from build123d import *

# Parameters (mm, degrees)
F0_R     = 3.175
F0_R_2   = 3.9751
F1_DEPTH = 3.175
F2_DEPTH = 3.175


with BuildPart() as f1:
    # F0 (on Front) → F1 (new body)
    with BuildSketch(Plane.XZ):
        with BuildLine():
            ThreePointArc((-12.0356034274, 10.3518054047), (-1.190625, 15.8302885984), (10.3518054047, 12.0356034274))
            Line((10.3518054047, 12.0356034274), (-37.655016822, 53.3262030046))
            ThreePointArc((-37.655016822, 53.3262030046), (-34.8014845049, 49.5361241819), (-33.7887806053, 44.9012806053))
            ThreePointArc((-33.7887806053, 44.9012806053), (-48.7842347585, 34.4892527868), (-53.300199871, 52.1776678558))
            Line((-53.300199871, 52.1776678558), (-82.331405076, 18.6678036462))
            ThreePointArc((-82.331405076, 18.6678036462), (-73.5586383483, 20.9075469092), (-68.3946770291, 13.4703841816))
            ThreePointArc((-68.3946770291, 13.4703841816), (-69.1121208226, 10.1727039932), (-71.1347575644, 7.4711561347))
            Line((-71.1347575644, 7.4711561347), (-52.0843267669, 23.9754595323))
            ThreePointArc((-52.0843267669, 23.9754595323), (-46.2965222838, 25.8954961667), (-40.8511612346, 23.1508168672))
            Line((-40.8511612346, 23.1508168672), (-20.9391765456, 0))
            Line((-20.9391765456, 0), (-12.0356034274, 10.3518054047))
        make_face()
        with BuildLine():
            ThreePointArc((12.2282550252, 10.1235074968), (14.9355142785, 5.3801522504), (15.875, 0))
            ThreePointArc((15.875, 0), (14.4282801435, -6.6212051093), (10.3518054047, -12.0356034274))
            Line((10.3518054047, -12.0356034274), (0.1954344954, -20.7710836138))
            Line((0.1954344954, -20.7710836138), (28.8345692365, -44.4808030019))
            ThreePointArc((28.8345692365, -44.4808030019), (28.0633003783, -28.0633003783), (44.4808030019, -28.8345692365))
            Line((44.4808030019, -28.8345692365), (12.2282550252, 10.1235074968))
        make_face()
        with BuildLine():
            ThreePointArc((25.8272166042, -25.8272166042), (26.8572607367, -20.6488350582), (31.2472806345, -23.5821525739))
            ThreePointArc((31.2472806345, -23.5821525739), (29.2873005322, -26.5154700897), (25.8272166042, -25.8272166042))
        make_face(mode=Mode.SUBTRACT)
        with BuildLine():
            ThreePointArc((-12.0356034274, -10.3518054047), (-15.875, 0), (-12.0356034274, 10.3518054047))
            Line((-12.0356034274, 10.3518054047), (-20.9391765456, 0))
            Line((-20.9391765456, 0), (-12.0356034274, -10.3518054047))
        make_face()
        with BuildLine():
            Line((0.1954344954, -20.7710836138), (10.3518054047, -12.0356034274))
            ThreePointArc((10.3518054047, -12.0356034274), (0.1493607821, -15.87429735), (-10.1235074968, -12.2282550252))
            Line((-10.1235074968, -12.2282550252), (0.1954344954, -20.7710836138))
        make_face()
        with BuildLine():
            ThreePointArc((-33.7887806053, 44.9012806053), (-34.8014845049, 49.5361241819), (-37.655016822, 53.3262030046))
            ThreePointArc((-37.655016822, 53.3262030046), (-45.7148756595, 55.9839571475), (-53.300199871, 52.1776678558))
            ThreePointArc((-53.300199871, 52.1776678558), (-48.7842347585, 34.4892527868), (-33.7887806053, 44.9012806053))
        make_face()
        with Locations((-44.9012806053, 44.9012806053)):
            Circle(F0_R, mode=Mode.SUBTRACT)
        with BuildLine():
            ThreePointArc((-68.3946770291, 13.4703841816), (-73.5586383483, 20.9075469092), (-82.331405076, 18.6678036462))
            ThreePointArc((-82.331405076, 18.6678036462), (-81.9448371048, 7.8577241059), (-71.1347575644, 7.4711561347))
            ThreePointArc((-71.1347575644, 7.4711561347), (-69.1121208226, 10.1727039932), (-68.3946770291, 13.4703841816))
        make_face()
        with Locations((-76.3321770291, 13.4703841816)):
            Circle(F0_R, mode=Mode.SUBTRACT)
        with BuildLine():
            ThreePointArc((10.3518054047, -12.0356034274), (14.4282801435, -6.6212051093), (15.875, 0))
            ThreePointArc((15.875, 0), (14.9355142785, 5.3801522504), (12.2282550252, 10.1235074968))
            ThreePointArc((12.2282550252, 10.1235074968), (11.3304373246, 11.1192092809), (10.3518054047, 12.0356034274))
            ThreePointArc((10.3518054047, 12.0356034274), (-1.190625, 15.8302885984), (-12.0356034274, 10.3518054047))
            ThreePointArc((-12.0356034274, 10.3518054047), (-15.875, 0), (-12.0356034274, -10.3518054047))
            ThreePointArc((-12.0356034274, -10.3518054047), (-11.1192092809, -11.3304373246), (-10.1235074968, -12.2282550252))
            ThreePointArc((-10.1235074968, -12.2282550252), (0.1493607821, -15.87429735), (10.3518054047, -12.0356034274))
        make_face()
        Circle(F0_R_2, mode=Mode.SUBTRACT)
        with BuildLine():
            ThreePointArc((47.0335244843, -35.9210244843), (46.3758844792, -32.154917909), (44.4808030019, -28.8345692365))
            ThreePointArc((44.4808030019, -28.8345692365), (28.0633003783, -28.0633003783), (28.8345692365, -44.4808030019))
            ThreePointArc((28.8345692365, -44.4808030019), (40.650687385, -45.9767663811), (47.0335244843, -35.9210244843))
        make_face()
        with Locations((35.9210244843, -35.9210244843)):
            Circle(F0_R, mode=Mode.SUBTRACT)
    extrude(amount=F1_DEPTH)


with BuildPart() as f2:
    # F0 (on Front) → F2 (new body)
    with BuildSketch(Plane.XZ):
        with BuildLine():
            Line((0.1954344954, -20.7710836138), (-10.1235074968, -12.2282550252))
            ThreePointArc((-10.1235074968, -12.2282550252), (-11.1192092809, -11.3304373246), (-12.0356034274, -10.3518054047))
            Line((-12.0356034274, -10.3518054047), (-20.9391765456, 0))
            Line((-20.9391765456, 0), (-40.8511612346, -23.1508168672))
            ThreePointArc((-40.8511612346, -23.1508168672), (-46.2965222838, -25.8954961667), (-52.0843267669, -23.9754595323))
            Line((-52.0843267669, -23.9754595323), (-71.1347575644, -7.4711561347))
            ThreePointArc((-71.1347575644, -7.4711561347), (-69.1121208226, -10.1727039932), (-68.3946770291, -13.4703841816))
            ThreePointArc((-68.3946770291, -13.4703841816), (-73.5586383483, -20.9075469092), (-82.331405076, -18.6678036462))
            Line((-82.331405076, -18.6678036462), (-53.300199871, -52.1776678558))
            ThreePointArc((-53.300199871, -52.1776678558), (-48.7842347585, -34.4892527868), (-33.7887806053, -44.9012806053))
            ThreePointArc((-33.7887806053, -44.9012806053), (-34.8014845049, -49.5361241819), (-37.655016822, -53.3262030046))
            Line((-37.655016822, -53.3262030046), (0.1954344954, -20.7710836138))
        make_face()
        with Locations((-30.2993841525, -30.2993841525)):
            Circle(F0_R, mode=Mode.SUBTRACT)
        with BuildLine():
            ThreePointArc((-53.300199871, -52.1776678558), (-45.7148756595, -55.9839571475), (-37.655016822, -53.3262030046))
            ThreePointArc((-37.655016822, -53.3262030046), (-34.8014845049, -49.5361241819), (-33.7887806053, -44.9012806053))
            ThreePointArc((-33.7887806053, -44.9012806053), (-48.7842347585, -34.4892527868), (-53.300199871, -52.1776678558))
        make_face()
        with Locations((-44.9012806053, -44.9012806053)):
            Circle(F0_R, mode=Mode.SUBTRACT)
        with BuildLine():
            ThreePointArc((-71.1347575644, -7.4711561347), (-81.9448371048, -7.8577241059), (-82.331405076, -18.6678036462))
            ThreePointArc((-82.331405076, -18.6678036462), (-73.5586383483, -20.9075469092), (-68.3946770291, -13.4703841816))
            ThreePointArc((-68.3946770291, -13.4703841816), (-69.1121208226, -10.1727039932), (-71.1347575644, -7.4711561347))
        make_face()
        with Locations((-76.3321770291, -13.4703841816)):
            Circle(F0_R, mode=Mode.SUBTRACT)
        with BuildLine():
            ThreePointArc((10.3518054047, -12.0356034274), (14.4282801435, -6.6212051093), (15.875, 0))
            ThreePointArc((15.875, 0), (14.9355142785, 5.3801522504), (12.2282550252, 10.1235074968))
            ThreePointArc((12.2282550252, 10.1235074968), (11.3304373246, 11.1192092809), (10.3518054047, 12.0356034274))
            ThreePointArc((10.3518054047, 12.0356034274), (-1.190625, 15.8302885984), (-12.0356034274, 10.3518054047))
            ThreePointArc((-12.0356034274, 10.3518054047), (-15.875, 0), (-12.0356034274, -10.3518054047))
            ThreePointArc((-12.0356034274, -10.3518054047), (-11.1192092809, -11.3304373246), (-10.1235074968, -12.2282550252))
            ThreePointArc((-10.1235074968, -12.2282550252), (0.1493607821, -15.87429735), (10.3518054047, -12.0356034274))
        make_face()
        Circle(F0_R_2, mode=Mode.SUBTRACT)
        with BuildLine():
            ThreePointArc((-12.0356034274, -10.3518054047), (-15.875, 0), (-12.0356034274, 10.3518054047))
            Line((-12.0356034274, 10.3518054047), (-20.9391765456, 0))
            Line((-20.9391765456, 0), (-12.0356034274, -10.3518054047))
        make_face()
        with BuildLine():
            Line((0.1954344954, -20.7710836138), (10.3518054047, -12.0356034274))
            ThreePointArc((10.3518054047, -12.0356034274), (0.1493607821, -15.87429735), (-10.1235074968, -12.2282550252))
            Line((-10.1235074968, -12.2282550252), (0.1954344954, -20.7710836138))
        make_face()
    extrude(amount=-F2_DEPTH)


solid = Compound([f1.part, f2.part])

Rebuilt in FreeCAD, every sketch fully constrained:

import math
import FreeCAD as App
import Part
import Sketcher

V = App.Vector
Q = App.Units.Quantity

doc = App.newDocument("Part")
body = doc.addObject("PartDesign::Body", "Body")

# Sketch on XZ plane
sketch1 = body.newObject("Sketcher::SketchObject", "Sketch")
sketch1.AttachmentSupport = (doc.getObject("XZ_Plane"), [""])
sketch1.MapMode = "FlatFace"
sketch1.addGeometry(Part.LineSegment(V(10.4, 12, 0), V(-37.7, 53.3, 0)), False)
sketch1.addGeometry(Part.ArcOfCircle(Part.Circle(V(-44.9, 44.9, 0), V(0, 0, 1), 11.1), math.radians(49), math.radians(139)), False)
sketch1.addGeometry(Part.LineSegment(V(-53.3, 52.2, 0), V(-82.3, 18.7, 0)), False)
sketch1.addGeometry(Part.ArcOfCircle(Part.Circle(V(-76.3, 13.5, 0), V(0, 0, 1), 7.9), math.radians(139), math.radians(311)), False)
sketch1.addGeometry(Part.LineSegment(V(-71.1, 7.5, 0), V(-52.1, 24, 0)), False)
sketch1.addGeometry(Part.ArcOfCircle(Part.Circle(V(-46.9, 18, 0), V(0, 0, 1), 8), math.radians(41), math.radians(131)), False)
sketch1.addGeometry(Part.LineSegment(V(-40.9, 23.2, 0), V(-20.9, 0, 0)), False)
sketch1.addGeometry(Part.LineSegment(V(-20.9, 0, 0), V(-12, -10.4, 0)), False)
sketch1.addGeometry(Part.ArcOfCircle(Part.Circle(V(0, 0, 0), V(0, 0, 1), 15.9), math.radians(-139.3), math.radians(-129.62)), False)
sketch1.addGeometry(Part.LineSegment(V(-10.1, -12.2, 0), V(0.2, -20.8, 0)), False)
sketch1.addGeometry(Part.LineSegment(V(0.2, -20.8, 0), V(28.8, -44.5, 0)), False)
sketch1.addGeometry(Part.ArcOfCircle(Part.Circle(V(35.9, -35.9, 0), V(0, 0, 1), 11.1), math.radians(-130), math.radians(0)), False)
sketch1.addGeometry(Part.ArcOfCircle(Part.Circle(V(35.9, -35.9, 0), V(0, 0, 1), 11.1), math.radians(0), math.radians(40)), False)
sketch1.addGeometry(Part.LineSegment(V(44.5, -28.8, 0), V(12.2, 10.1, 0)), False)
sketch1.addGeometry(Part.ArcOfCircle(Part.Circle(V(0, 0, 0), V(0, 0, 1), 15.9), math.radians(39.62), math.radians(49.3)), False)
sketch1.addGeometry(Part.Circle(V(35.9, -35.9, 0), V(0, 0, 1), 3.2), False)
sketch1.addGeometry(Part.ArcOfCircle(Part.Circle(V(28.1, -23.6, 0), V(0, 0, 1), 3.2), math.radians(-135), math.radians(0)), False)
sketch1.addGeometry(Part.ArcOfCircle(Part.Circle(V(28.1, -23.6, 0), V(0, 0, 1), 3.2), math.radians(0), math.radians(225)), False)
sketch1.addGeometry(Part.Circle(V(0, 0, 0), V(0, 0, 1), 4), False)
sketch1.addGeometry(Part.Circle(V(-76.3, 13.5, 0), V(0, 0, 1), 3.2), False)
sketch1.addGeometry(Part.Circle(V(-44.9, 44.9, 0), V(0, 0, 1), 3.2), False)
sketch1.addConstraint(Sketcher.Constraint("Tangent", 0, 2, 1, 1))
sketch1.addConstraint(Sketcher.Constraint("Tangent", 1, 2, 2, 1))
sketch1.addConstraint(Sketcher.Constraint("Tangent", 2, 2, 3, 1))
sketch1.addConstraint(Sketcher.Constraint("Tangent", 3, 2, 4, 1))
sketch1.addConstraint(Sketcher.Constraint("Tangent", 4, 2, 5, 2))
sketch1.addConstraint(Sketcher.Constraint("Tangent", 5, 1, 6, 1))
sketch1.addConstraint(Sketcher.Constraint("Coincident", 6, 2, 7, 1))
sketch1.addConstraint(Sketcher.Constraint("Tangent", 7, 2, 8, 1))
sketch1.addConstraint(Sketcher.Constraint("Tangent", 8, 2, 9, 1))
sketch1.addConstraint(Sketcher.Constraint("Coincident", 9, 2, 10, 1))
sketch1.addConstraint(Sketcher.Constraint("Tangent", 10, 2, 11, 1))
sketch1.addConstraint(Sketcher.Constraint("Tangent", 11, 2, 12, 1))
sketch1.addConstraint(Sketcher.Constraint("Tangent", 12, 2, 13, 1))
sketch1.addConstraint(Sketcher.Constraint("Tangent", 13, 2, 14, 1))
sketch1.addConstraint(Sketcher.Constraint("Tangent", 14, 2, 0, 1))
sketch1.addConstraint(Sketcher.Constraint("Tangent", 16, 1, 17, 2))
sketch1.addConstraint(Sketcher.Constraint("Coincident", 17, 1, 16, 2))
sketch1.addConstraint(Sketcher.Constraint("Coincident", 8, 3, -1, 1))
sketch1.addConstraint(Sketcher.Constraint("Coincident", 14, 3, -1, 1))
sketch1.addConstraint(Sketcher.Constraint("Coincident", 18, 3, -1, 1))
sketch1.addConstraint(Sketcher.Constraint("Coincident", 15, 3, 11, 3))
sketch1.addConstraint(Sketcher.Constraint("Coincident", 19, 3, 3, 3))
sketch1.addConstraint(Sketcher.Constraint("Coincident", 20, 3, 1, 3))
sketch1.addConstraint(Sketcher.Constraint("Equal", 1, 11))
sketch1.addConstraint(Sketcher.Constraint("Equal", 11, 12))
sketch1.addConstraint(Sketcher.Constraint("Equal", 8, 14))
sketch1.addConstraint(Sketcher.Constraint("Equal", 15, 16))
sketch1.addConstraint(Sketcher.Constraint("Equal", 17, 19))
sketch1.addConstraint(Sketcher.Constraint("Equal", 19, 20))
sketch1.addConstraint(Sketcher.Constraint("PointOnObject", 6, 2, -1))
sketch1.addConstraint(Sketcher.Constraint("Parallel", 6, 7))
sketch1.addConstraint(Sketcher.Constraint("Parallel", 9, 10))
sketch1.addConstraint(Sketcher.Constraint("Horizontal", 15, 3, 11, 2))
sketch1.addConstraint(Sketcher.Constraint("Horizontal", 16, 3, 17, 1))
sketch1.addConstraint(Sketcher.Constraint("Diameter", 15, Q("0.25 in")))
sketch1.addConstraint(Sketcher.Constraint("Diameter", 18, Q("0.313 in")))
sketch1.addConstraint(Sketcher.Constraint("Radius", 1, Q("0.4375 in")))
sketch1.addConstraint(Sketcher.Constraint("Radius", 3, Q("0.3125 in")))
sketch1.addConstraint(Sketcher.Constraint("Radius", 5, Q("0.313 in")))
sketch1.addConstraint(Sketcher.Constraint("Radius", 8, Q("0.625 in")))
sketch1.addConstraint(Sketcher.Constraint("DistanceX", 1, 2, -1, 1, Q("53.3002 mm")))
sketch1.addConstraint(Sketcher.Constraint("DistanceX", 3, 3, 11, 3, Q("112.253202 mm")))
sketch1.addConstraint(Sketcher.Constraint("Distance", 10, Q("37.179979 mm")))
sketch1.addConstraint(Sketcher.Constraint("DistanceX", 1, 3, -1, 1, Q("44.901281 mm")))
sketch1.addConstraint(Sketcher.Constraint("DistanceY", -1, 1, 1, 3, Q("44.901281 mm")))
sketch1.addConstraint(Sketcher.Constraint("DistanceX", 5, 3, -1, 1, Q("46.878591 mm")))
sketch1.addConstraint(Sketcher.Constraint("DistanceX", -1, 1, 16, 3, Q("28.072281 mm")))
sketch1.addConstraint(Sketcher.Constraint("DistanceY", -1, 1, 4, 2, Q("23.97546 mm")))
sketch1.addConstraint(Sketcher.Constraint("DistanceX", -1, 1, 10, 2, Q("28.834569 mm")))
sketch1.addConstraint(Sketcher.Constraint("DistanceY", 12, 2, -1, 1, Q("28.834569 mm")))
sketch1.addConstraint(Sketcher.Constraint("DistanceY", 11, 3, 16, 3, Q("12.338872 mm")))
sketch1.addConstraint(Sketcher.Constraint("DistanceX", -1, 1, 16, 1, Q("25.827217 mm")))
pad1 = body.newObject("PartDesign::Pad", "Pad")
pad1.Profile = sketch1
pad1.Length = Q("0.125 in")
body2 = doc.addObject("PartDesign::Body", "Body001")

# Sketch on XZ plane
sketch2 = body2.newObject("Sketcher::SketchObject", "Sketch001")
sketch2.AttachmentSupport = (doc.getObject("XZ_Plane001"), [""])
sketch2.MapMode = "FlatFace"
sketch2.addGeometry(Part.ArcOfCircle(Part.Circle(V(0, 0, 0), V(0, 0, 1), 15.875), math.radians(-49.301222), math.radians(0)), False)
sketch2.addGeometry(Part.ArcOfCircle(Part.Circle(V(0, 0, 0), V(0, 0, 1), 15.875), math.radians(0), math.radians(39.620621)), False)
sketch2.addGeometry(Part.ArcOfCircle(Part.Circle(V(0, 0, 0), V(0, 0, 1), 15.875), math.radians(39.620621), math.radians(49.301222)), False)
sketch2.addGeometry(Part.ArcOfCircle(Part.Circle(V(0, 0, 0), V(0, 0, 1), 15.875), math.radians(49.301222), math.radians(139.301222)), False)
sketch2.addGeometry(Part.LineSegment(V(-12.035603, 10.351805, 0), V(-20.939177, 0, 0)), False)
sketch2.addGeometry(Part.LineSegment(V(-20.939177, 0, 0), V(-40.851161, -23.150817, 0)), False)
sketch2.addGeometry(Part.ArcOfCircle(Part.Circle(V(-46.878591, -17.966633, 0), V(0, 0, 1), 7.9502), math.radians(-130.903956), math.radians(-40.698778)), False)
sketch2.addGeometry(Part.LineSegment(V(-52.084327, -23.97546, 0), V(-71.134758, -7.471156, 0)), False)
sketch2.addGeometry(Part.ArcOfCircle(Part.Circle(V(-76.332177, -13.470384, 0), V(0, 0, 1), 7.9375), math.radians(49.096044), math.radians(220.903956)), False)
sketch2.addGeometry(Part.LineSegment(V(-82.331405, -18.667804, 0), V(-53.3002, -52.177668, 0)), False)
sketch2.addGeometry(Part.ArcOfCircle(Part.Circle(V(-44.901281, -44.901281, 0), V(0, 0, 1), 11.1125), math.radians(-139.096044), math.radians(-49.301222)), False)
sketch2.addGeometry(Part.LineSegment(V(-37.655017, -53.326203, 0), V(10.351805, -12.035603, 0)), False)
sketch2.addGeometry(Part.Circle(V(-44.901281, -44.901281, 0), V(0, 0, 1), 3.175), False)
sketch2.addGeometry(Part.Circle(V(-30.299384, -30.299384, 0), V(0, 0, 1), 3.175), False)
sketch2.addGeometry(Part.Circle(V(-76.332177, -13.470384, 0), V(0, 0, 1), 3.175), False)
sketch2.addGeometry(Part.Circle(V(0, 0, 0), V(0, 0, 1), 3.9751), False)
sketch2.addConstraint(Sketcher.Constraint("Coincident", 0, 2, 1, 1))
sketch2.addConstraint(Sketcher.Constraint("Coincident", 1, 2, 2, 1))
sketch2.addConstraint(Sketcher.Constraint("Coincident", 2, 2, 3, 1))
sketch2.addConstraint(Sketcher.Constraint("Coincident", 3, 2, 4, 1))
sketch2.addConstraint(Sketcher.Constraint("Coincident", 4, 2, 5, 1))
sketch2.addConstraint(Sketcher.Constraint("Coincident", 5, 2, 6, 2))
sketch2.addConstraint(Sketcher.Constraint("Coincident", 6, 1, 7, 1))
sketch2.addConstraint(Sketcher.Constraint("Coincident", 7, 2, 8, 1))
sketch2.addConstraint(Sketcher.Constraint("Coincident", 8, 2, 9, 1))
sketch2.addConstraint(Sketcher.Constraint("Coincident", 9, 2, 10, 1))
sketch2.addConstraint(Sketcher.Constraint("Coincident", 10, 2, 11, 1))
sketch2.addConstraint(Sketcher.Constraint("Coincident", 11, 2, 0, 1))
sketch2.addConstraint(Sketcher.Constraint("Coincident", 0, 3, -1, 1))
sketch2.addConstraint(Sketcher.Constraint("Coincident", 1, 3, -1, 1))
sketch2.addConstraint(Sketcher.Constraint("Coincident", 2, 3, -1, 1))
sketch2.addConstraint(Sketcher.Constraint("Coincident", 3, 3, -1, 1))
sketch2.addConstraint(Sketcher.Constraint("Coincident", 15, 3, -1, 1))
sketch2.addConstraint(Sketcher.Constraint("Coincident", 12, 3, 10, 3))
sketch2.addConstraint(Sketcher.Constraint("Coincident", 14, 3, 8, 3))
sketch2.addConstraint(Sketcher.Constraint("PointOnObject", 0, 2, -1))
sketch2.addConstraint(Sketcher.Constraint("PointOnObject", 4, 2, -1))
sketch2.addConstraint(Sketcher.Constraint("Diameter", 12, Q("0.25 in")))
sketch2.addConstraint(Sketcher.Constraint("Diameter", 13, Q("0.25 in")))
sketch2.addConstraint(Sketcher.Constraint("Diameter", 14, Q("0.25 in")))
sketch2.addConstraint(Sketcher.Constraint("Diameter", 15, Q("0.313 in")))
sketch2.addConstraint(Sketcher.Constraint("Radius", 0, Q("0.625 in")))
sketch2.addConstraint(Sketcher.Constraint("Radius", 6, Q("0.313 in")))
sketch2.addConstraint(Sketcher.Constraint("Radius", 8, Q("0.3125 in")))
sketch2.addConstraint(Sketcher.Constraint("Radius", 10, Q("0.4375 in")))
sketch2.addConstraint(Sketcher.Constraint("DistanceX", 9, 2, -1, 1, Q("53.3002 mm")))
sketch2.addConstraint(Sketcher.Constraint("DistanceY", 13, 3, 14, 3, Q("16.829 mm")))
sketch2.addConstraint(Sketcher.Constraint("DistanceX", 6, 3, -1, 1, Q("46.878591 mm")))
sketch2.addConstraint(Sketcher.Constraint("DistanceX", 10, 3, -1, 1, Q("44.901281 mm")))
sketch2.addConstraint(Sketcher.Constraint("DistanceY", 10, 3, -1, 1, Q("44.901281 mm")))
sketch2.addConstraint(Sketcher.Constraint("DistanceX", 5, 2, -1, 1, Q("40.851161 mm")))
sketch2.addConstraint(Sketcher.Constraint("DistanceY", 6, 1, -1, 1, Q("23.97546 mm")))
sketch2.addConstraint(Sketcher.Constraint("DistanceY", 6, 3, 8, 3, Q("4.496249 mm")))
sketch2.addConstraint(Sketcher.Constraint("DistanceX", 2, 2, 1, 2, Q("1.87645 mm")))
sketch2.addConstraint(Sketcher.Constraint("DistanceX", 8, 3, 7, 2, Q("5.197419 mm")))
sketch2.addConstraint(Sketcher.Constraint("DistanceX", 7, 2, 6, 1, Q("19.050431 mm")))
sketch2.addConstraint(Sketcher.Constraint("DistanceX", 8, 2, 8, 3, Q("5.999228 mm")))
sketch2.addConstraint(Sketcher.Constraint("DistanceY", 9, 2, 5, 2, Q("29.026851 mm")))
sketch2.addConstraint(Sketcher.Constraint("DistanceY", 10, 2, 13, 3, Q("23.026819 mm")))
sketch2.addConstraint(Sketcher.Constraint("Distance", 4, Q("13.654065 mm")))
sketch2.addConstraint(Sketcher.Constraint("Distance", 5, Q("30.536003 mm")))
sketch2.addConstraint(Sketcher.Constraint("Distance", 11, Q("63.321154 mm")))
sketch2.addConstraint(Sketcher.Constraint("DistanceX", 13, 3, -1, 1, Q("30.299384 mm")))
sketch2.addConstraint(Sketcher.Constraint("DistanceX", -1, 1, 1, 2, Q("12.228255 mm")))
pad2 = body2.newObject("PartDesign::Pad", "Pad001")
pad2.Profile = sketch2
pad2.Length = Q("0.125 in")
pad2.Reversed = True

doc.recompute()
